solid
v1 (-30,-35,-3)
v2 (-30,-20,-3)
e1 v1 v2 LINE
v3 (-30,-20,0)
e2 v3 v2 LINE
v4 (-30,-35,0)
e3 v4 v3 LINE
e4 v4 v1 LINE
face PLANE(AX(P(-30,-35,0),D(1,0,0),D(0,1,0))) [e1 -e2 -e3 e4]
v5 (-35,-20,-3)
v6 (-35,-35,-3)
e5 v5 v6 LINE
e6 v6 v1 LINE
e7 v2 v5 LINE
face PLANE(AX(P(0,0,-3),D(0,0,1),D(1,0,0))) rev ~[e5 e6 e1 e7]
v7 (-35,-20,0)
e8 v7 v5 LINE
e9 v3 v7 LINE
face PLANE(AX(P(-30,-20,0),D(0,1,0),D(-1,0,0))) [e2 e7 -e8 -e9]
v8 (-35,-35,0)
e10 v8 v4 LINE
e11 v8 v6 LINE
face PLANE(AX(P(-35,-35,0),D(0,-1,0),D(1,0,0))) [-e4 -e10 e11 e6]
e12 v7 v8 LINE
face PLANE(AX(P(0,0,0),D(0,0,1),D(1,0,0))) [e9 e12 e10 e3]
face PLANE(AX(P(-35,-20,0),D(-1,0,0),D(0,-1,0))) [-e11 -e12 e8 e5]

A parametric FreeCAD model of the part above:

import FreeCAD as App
import Part
import Sketcher

doc = App.newDocument("Part")
params = doc.addObject("Spreadsheet::Sheet", "Params")
for row, (alias, value) in enumerate([
    ("sketch1_width", "5 mm"),
    ("sketch1_height", "15 mm"),
    ("pad1_length", "3 mm"),
], start=1):
    params.set(f"A{row}", alias)
    params.set(f"B{row}", "=" + value)
    params.setAlias(f"B{row}", alias)

body = doc.addObject("PartDesign::Body", "Body")

sketch1 = body.newObject("Sketcher::SketchObject", "Sketch")
sketch1.AttachmentSupport = (doc.getObject("XY_Plane"), [""])
sketch1.MapMode = "FlatFace"
sketch1.addGeometry([
    Part.LineSegment(App.Vector(-30, -20, 0), App.Vector(-35, -20, 0)),
    Part.LineSegment(App.Vector(-35, -20, 0), App.Vector(-35, -35, 0)),
    Part.LineSegment(App.Vector(-35, -35, 0), App.Vector(-30, -35, 0)),
    Part.LineSegment(App.Vector(-30, -35, 0), App.Vector(-30, -20, 0)),
], False)
sketch1.addConstraint([
    Sketcher.Constraint("Coincident", 0, 2, 1, 1),
    Sketcher.Constraint("Coincident", 1, 2, 2, 1),
    Sketcher.Constraint("Coincident", 2, 2, 3, 1),
    Sketcher.Constraint("Coincident", 3, 2, 0, 1),
    Sketcher.Constraint("Horizontal", 0),
    Sketcher.Constraint("Vertical", 1),
    Sketcher.Constraint("Horizontal", 2),
    Sketcher.Constraint("Vertical", 3),
    Sketcher.Constraint("DistanceX", 0, 2, 0, 1, 5.0),
    Sketcher.Constraint("DistanceY", 1, 2, 1, 1, 15.0),
    Sketcher.Constraint("DistanceX", 0, 2, -1, 1, 35.0),
    Sketcher.Constraint("DistanceY", 0, 2, -1, 1, 20.0),
])
sketch1.setExpression("Constraints[8]", "Params.sketch1_width")
sketch1.setExpression("Constraints[9]", "Params.sketch1_height")
pad1 = body.newObject("PartDesign::Pad", "Pad")
pad1.Profile = sketch1
pad1.setExpression("Length", "Params.pad1_length")
pad1.Reversed = True

doc.recompute()
